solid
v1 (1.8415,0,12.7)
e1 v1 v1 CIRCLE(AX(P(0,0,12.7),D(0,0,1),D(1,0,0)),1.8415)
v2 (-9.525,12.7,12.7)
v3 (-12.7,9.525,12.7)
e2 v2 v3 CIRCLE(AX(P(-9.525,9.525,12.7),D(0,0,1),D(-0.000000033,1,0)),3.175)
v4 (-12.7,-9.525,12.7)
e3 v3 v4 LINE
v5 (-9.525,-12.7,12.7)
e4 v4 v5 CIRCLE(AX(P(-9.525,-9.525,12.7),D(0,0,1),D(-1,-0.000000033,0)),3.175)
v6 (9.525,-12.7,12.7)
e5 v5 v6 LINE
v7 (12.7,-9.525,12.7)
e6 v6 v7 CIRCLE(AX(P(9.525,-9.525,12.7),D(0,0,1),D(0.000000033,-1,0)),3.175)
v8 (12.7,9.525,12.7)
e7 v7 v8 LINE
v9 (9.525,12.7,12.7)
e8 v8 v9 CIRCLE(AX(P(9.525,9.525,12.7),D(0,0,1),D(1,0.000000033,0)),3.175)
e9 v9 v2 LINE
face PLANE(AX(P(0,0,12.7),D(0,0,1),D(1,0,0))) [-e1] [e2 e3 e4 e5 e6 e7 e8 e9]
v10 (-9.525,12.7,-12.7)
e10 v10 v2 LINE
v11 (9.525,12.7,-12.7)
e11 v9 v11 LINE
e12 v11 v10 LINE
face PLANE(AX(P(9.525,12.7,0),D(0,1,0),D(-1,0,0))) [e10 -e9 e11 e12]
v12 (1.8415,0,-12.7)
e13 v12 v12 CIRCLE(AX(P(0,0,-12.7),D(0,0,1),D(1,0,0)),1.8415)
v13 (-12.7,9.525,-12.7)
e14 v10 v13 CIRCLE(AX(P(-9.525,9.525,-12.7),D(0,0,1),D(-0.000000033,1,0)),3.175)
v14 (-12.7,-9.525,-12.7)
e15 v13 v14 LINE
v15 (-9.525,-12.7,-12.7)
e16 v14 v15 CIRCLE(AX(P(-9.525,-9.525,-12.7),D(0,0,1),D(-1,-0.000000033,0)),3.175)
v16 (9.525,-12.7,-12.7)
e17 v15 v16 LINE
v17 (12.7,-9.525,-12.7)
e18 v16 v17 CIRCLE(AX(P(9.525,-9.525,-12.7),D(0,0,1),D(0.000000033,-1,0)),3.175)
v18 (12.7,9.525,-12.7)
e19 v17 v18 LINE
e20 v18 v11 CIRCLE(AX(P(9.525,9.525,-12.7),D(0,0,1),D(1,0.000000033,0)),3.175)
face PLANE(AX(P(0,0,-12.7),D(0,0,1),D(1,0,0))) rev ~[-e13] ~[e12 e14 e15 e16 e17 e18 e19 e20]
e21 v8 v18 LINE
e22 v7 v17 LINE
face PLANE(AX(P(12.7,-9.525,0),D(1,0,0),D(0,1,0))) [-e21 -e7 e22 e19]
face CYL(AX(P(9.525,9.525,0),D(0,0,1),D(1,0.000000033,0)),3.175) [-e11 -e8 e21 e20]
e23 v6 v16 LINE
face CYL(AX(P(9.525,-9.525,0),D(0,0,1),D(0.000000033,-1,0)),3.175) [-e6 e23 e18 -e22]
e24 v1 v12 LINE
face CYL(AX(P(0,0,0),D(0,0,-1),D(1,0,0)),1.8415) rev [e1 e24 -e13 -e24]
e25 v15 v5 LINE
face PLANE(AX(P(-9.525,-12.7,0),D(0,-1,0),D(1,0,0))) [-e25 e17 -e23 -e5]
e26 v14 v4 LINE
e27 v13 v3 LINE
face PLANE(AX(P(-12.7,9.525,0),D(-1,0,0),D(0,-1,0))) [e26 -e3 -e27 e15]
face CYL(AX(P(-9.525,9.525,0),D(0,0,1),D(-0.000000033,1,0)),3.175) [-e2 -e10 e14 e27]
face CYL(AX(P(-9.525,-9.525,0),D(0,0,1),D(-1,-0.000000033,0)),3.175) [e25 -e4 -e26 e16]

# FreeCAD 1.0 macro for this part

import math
import FreeCAD as App
import Part
import Sketcher
Q = App.Units.Quantity

doc = App.newDocument("Part")
params = doc.addObject("Spreadsheet::Sheet", "Params")
for row, (alias, value) in enumerate([
    ("sketch1_diameter", "0.145 in"),
    ("sketch1_radius", "0.125 in"),
    ("sketch1_width", "0.75 in"),
    ("pad1_length", "1 in"),
], start=1):
    params.set(f"A{row}", alias)
    params.set(f"B{row}", "=" + value)
    params.setAlias(f"B{row}", alias)

body = doc.addObject("PartDesign::Body", "Body")

# Sketch on XY plane
sketch1 = body.newObject("Sketcher::SketchObject", "Sketch")
sketch1.AttachmentSupport = (doc.getObject("XY_Plane"), [""])
sketch1.MapMode = "FlatFace"
sketch1.addGeometry(Part.LineSegment(App.Vector(9.525, 12.7, 0), App.Vector(-9.525, 12.7, 0)), False)
sketch1.addGeometry(Part.ArcOfCircle(Part.Circle(App.Vector(-9.525, 9.525, 0), App.Vector(0, 0, 1), 3.175), math.radians(90.000002), math.radians(179.999998)), False)
sketch1.addGeometry(Part.LineSegment(App.Vector(-12.7, 9.525, 0), App.Vector(-12.7, -9.525, 0)), False)
sketch1.addGeometry(Part.ArcOfCircle(Part.Circle(App.Vector(-9.525, -9.525, 0), App.Vector(0, 0, 1), 3.175), math.radians(-179.999998), math.radians(-90.000002)), False)
sketch1.addGeometry(Part.LineSegment(App.Vector(-9.525, -12.7, 0), App.Vector(9.525, -12.7, 0)), False)
sketch1.addGeometry(Part.ArcOfCircle(Part.Circle(App.Vector(9.525, -9.525, 0), App.Vector(0, 0, 1), 3.175), math.radians(-89.999998), math.radians(-0.000002)), False)
sketch1.addGeometry(Part.LineSegment(App.Vector(12.7, -9.525, 0), App.Vector(12.7, 9.525, 0)), False)
sketch1.addGeometry(Part.ArcOfCircle(Part.Circle(App.Vector(9.525, 9.525, 0), App.Vector(0, 0, 1), 3.175), math.radians(0.000002), math.radians(89.999998)), False)
sketch1.addGeometry(Part.Circle(App.Vector(0, 0, 0), App.Vector(0, 0, 1), 1.8415), False)
sketch1.addConstraint(Sketcher.Constraint("Tangent", 0, 2, 1, 1))
sketch1.addConstraint(Sketcher.Constraint("Tangent", 1, 2, 2, 1))
sketch1.addConstraint(Sketcher.Constraint("Tangent", 2, 2, 3, 1))
sketch1.addConstraint(Sketcher.Constraint("Tangent", 3, 2, 4, 1))
sketch1.addConstraint(Sketcher.Constraint("Tangent", 4, 2, 5, 1))
sketch1.addConstraint(Sketcher.Constraint("Tangent", 5, 2, 6, 1))
sketch1.addConstraint(Sketcher.Constraint("Tangent", 6, 2, 7, 1))
sketch1.addConstraint(Sketcher.Constraint("Tangent", 7, 2, 0, 1))
sketch1.addConstraint(Sketcher.Constraint("Horizontal", 0))
sketch1.addConstraint(Sketcher.Constraint("Vertical", 2))
sketch1.addConstraint(Sketcher.Constraint("Horizontal", 4))
sketch1.addConstraint(Sketcher.Constraint("Vertical", 6))
sketch1.addConstraint(Sketcher.Constraint("Coincident", 8, 3, -1, 1))
sketch1.addConstraint(Sketcher.Constraint("Equal", 1, 3))
sketch1.addConstraint(Sketcher.Constraint("Equal", 3, 5))
sketch1.addConstraint(Sketcher.Constraint("Equal", 5, 7))
sketch1.addConstraint(Sketcher.Constraint("Symmetric", 1, 3, 5, 3, -1, 1))
sketch1.addConstraint(Sketcher.Constraint("Equal", 4, 2))
sketch1.addConstraint(Sketcher.Constraint("Diameter", 8, Q("0.145 in")))
sketch1.addConstraint(Sketcher.Constraint("Radius", 1, Q("0.125 in")))
sketch1.addConstraint(Sketcher.Constraint("DistanceX", 0, 2, 0, 1, Q("0.75 in")))
sketch1.setExpression("Constraints[18]", "Params.sketch1_diameter")
sketch1.setExpression("Constraints[19]", "Params.sketch1_radius")
sketch1.setExpression("Constraints[20]", "Params.sketch1_width")
pad1 = body.newObject("PartDesign::Pad", "Pad")
pad1.Profile = sketch1
pad1.setExpression("Length", "Params.pad1_length")
pad1.Midplane = True

doc.recompute()
